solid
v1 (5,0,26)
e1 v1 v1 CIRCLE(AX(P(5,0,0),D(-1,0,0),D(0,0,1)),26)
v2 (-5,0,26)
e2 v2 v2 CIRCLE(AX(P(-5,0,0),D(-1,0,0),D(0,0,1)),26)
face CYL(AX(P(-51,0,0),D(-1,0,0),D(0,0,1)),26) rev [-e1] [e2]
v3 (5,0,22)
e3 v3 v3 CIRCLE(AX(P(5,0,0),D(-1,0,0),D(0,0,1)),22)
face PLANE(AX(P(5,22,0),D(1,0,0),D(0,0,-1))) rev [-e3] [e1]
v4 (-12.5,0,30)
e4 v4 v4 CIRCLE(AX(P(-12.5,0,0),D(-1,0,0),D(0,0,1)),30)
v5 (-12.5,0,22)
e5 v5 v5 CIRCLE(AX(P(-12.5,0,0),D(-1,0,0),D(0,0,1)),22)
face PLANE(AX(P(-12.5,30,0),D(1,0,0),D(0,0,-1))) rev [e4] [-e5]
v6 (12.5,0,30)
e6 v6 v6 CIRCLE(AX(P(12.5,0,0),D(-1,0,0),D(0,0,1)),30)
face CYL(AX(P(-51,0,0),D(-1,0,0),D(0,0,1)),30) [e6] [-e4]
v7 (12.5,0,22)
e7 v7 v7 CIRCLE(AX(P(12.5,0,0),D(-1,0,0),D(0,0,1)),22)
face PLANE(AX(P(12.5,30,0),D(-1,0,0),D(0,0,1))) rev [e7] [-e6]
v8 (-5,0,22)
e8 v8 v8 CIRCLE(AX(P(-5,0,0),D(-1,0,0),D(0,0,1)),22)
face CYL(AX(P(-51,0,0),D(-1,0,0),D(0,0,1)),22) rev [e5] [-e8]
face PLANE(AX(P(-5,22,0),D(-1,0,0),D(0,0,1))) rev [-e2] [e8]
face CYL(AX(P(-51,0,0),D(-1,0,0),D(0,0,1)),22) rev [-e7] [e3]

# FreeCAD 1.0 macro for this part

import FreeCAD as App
import Part
import Sketcher
from FreeCAD import Vector
Q = App.Units.Quantity

doc = App.newDocument("Part")
body = doc.addObject("PartDesign::Body", "Body")

sketch1 = body.newObject("Sketcher::SketchObject", "Sketch")
sketch1.AttachmentSupport = (doc.getObject("XY_Plane"), [""])
sketch1.MapMode = "FlatFace"
sketch1.addGeometry(Part.LineSegment(Vector(5, 22, 0), Vector(12.5, 22, 0)), False)
sketch1.addGeometry(Part.LineSegment(Vector(12.5, 22, 0), Vector(12.5, 30, 0)), False)
sketch1.addGeometry(Part.LineSegment(Vector(12.5, 30, 0), Vector(-12.5, 30, 0)), False)
sketch1.addGeometry(Part.LineSegment(Vector(-12.5, 30, 0), Vector(-12.5, 22, 0)), False)
sketch1.addGeometry(Part.LineSegment(Vector(-12.5, 22, 0), Vector(-5, 22, 0)), False)
sketch1.addGeometry(Part.LineSegment(Vector(-5, 22, 0), Vector(-5, 26, 0)), False)
sketch1.addGeometry(Part.LineSegment(Vector(-5, 26, 0), Vector(5, 26, 0)), False)
sketch1.addGeometry(Part.LineSegment(Vector(5, 26, 0), Vector(5, 22, 0)), False)
sketch1.addConstraint(Sketcher.Constraint("Coincident", 0, 2, 1, 1))
sketch1.addConstraint(Sketcher.Constraint("Coincident", 1, 2, 2, 1))
sketch1.addConstraint(Sketcher.Constraint("Coincident", 2, 2, 3, 1))
sketch1.addConstraint(Sketcher.Constraint("Coincident", 3, 2, 4, 1))
sketch1.addConstraint(Sketcher.Constraint("Coincident", 4, 2, 5, 1))
sketch1.addConstraint(Sketcher.Constraint("Coincident", 5, 2, 6, 1))
sketch1.addConstraint(Sketcher.Constraint("Coincident", 6, 2, 7, 1))
sketch1.addConstraint(Sketcher.Constraint("Coincident", 7, 2, 0, 1))
sketch1.addConstraint(Sketcher.Constraint("Horizontal", 0))
sketch1.addConstraint(Sketcher.Constraint("Vertical", 1))
sketch1.addConstraint(Sketcher.Constraint("Horizontal", 2))
sketch1.addConstraint(Sketcher.Constraint("Vertical", 3))
sketch1.addConstraint(Sketcher.Constraint("Horizontal", 4))
sketch1.addConstraint(Sketcher.Constraint("Vertical", 5))
sketch1.addConstraint(Sketcher.Constraint("Horizontal", 6))
sketch1.addConstraint(Sketcher.Constraint("Vertical", 7))
sketch1.addConstraint(Sketcher.Constraint("Symmetric", 0, 2, 3, 2, -2))
sketch1.addConstraint(Sketcher.Constraint("Equal", 0, 4))
sketch1.addConstraint(Sketcher.Constraint("DistanceX", 2, 2, 2, 1, Q("25 mm")))
sketch1.addConstraint(Sketcher.Constraint("DistanceX", 6, 1, 6, 2, Q("10 mm")))
sketch1.addConstraint(Sketcher.Constraint("DistanceY", 1, 1, 1, 2, Q("8 mm")))
sketch1.addConstraint(Sketcher.Constraint("DistanceY", 5, 1, 5, 2, Q("4 mm")))
sketch1.addConstraint(Sketcher.Constraint("DistanceY", -1, 1, 0, 2, Q("22 mm")))
revolution = body.newObject("PartDesign::Revolution", "Revolution")
revolution.Profile = sketch1
revolution.ReferenceAxis = (sketch1, ["H_Axis"])
revolution.Angle = 360

doc.recompute()
